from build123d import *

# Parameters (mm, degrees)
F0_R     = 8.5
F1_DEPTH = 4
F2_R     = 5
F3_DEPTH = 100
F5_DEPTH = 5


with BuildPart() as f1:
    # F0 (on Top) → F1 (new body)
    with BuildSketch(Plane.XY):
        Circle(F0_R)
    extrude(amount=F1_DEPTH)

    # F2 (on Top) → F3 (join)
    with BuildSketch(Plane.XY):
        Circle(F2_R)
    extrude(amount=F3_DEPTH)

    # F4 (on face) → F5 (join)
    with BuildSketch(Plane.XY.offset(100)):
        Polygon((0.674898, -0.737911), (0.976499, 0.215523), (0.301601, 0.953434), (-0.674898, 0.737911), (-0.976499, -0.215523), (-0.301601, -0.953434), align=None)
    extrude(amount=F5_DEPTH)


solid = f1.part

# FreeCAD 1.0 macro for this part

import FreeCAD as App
import Part
import Sketcher

V = App.Vector


def add_polygon(sketch, points):
    """Adds a closed chain of lines whose ends are joined by coincident constraints."""
    first, n = sketch.GeometryCount, len(points)
    for a, b in zip(points, points[1:] + points[:1]):
        sketch.addGeometry(Part.LineSegment(App.Vector(*a, 0), App.Vector(*b, 0)), False)
    for i in range(n):
        sketch.addConstraint(Sketcher.Constraint("Coincident", first + i, 2, first + (i + 1) % n, 1))

doc = App.newDocument("Part")
params = doc.addObject("Spreadsheet::Sheet", "Params")
for row, (alias, value) in enumerate([
    ("sketch1_diameter", "17 mm"),
    ("pad1_length", "4 mm"),
    ("sketch2_diameter", "10 mm"),
    ("pad2_length", "100 mm"),
    ("sketch3_length", "1 mm"),
    ("pad3_length", "5 mm"),
], start=1):
    params.set(f"A{row}", alias)
    params.set(f"B{row}", "=" + value)
    params.setAlias(f"B{row}", alias)

body = doc.addObject("PartDesign::Body", "Body")

# Sketch on XY plane
sketch1 = body.newObject("Sketcher::SketchObject", "Sketch")
sketch1.AttachmentSupport = (doc.getObject("XY_Plane"), [""])
sketch1.MapMode = "FlatFace"
sketch1.addGeometry(Part.Circle(V(0, 0, 0), V(0, 0, 1), 8), False)
sketch1.addConstraint([
    Sketcher.Constraint("Coincident", 0, 3, -1, 1),
    Sketcher.Constraint("Diameter", 0, 17.0),
])
sketch1.setExpression("Constraints[1]", "Params.sketch1_diameter")
pad1 = body.newObject("PartDesign::Pad", "Pad")
pad1.Profile = sketch1
pad1.setExpression("Length", "Params.pad1_length")

# Sketch on XY plane
sketch2 = body.newObject("Sketcher::SketchObject", "Sketch001")
sketch2.AttachmentSupport = (doc.getObject("XY_Plane"), [""])
sketch2.MapMode = "FlatFace"
sketch2.addGeometry(Part.Circle(V(0, 0, 0), V(0, 0, 1), 5), False)
sketch2.addConstraint([
    Sketcher.Constraint("Coincident", 0, 3, -1, 1),
    Sketcher.Constraint("Diameter", 0, 10.0),
])
sketch2.setExpression("Constraints[1]", "Params.sketch2_diameter")
pad2 = body.newObject("PartDesign::Pad", "Pad001")
pad2.Profile = sketch2
pad2.setExpression("Length", "Params.pad2_length")

# Sketch on XY plane
sketch3 = body.newObject("Sketcher::SketchObject", "Sketch002")
sketch3.AttachmentSupport = (doc.getObject("XY_Plane"), [""])
sketch3.MapMode = "FlatFace"
sketch3.AttachmentOffset = App.Placement(V(0, 0, 100), App.Rotation())
add_polygon(sketch3, [(0.7, -0.7), (1, 0.2), (0.3, 1), (-0.7, 0.7), (-1, -0.2), (-0.3, -1)])  # lines 0-5
sketch3.addConstraint([
    Sketcher.Constraint("Symmetric", 0, 2, 3, 2, -1, 1),
    Sketcher.Constraint("Symmetric", 1, 2, 4, 2, -1, 1),
    Sketcher.Constraint("Symmetric", 2, 2, 5, 2, -1, 1),
    Sketcher.Constraint("Equal", 0, 1),
    Sketcher.Constraint("Equal", 1, 2),
    Sketcher.Constraint("Distance", 0, 1.0),
    Sketcher.Constraint("DistanceX", -1, 1, 0, 2, 0.976499),
    Sketcher.Constraint("DistanceX", -1, 1, 1, 2, 0.301601),
    Sketcher.Constraint("DistanceX", 2, 2, 1, 2, 0.976499),
])
sketch3.setExpression("Constraints[11]", "Params.sketch3_length")
pad3 = body.newObject("PartDesign::Pad", "Pad002")
pad3.Profile = sketch3
pad3.setExpression("Length", "Params.pad3_length")

doc.recompute()
